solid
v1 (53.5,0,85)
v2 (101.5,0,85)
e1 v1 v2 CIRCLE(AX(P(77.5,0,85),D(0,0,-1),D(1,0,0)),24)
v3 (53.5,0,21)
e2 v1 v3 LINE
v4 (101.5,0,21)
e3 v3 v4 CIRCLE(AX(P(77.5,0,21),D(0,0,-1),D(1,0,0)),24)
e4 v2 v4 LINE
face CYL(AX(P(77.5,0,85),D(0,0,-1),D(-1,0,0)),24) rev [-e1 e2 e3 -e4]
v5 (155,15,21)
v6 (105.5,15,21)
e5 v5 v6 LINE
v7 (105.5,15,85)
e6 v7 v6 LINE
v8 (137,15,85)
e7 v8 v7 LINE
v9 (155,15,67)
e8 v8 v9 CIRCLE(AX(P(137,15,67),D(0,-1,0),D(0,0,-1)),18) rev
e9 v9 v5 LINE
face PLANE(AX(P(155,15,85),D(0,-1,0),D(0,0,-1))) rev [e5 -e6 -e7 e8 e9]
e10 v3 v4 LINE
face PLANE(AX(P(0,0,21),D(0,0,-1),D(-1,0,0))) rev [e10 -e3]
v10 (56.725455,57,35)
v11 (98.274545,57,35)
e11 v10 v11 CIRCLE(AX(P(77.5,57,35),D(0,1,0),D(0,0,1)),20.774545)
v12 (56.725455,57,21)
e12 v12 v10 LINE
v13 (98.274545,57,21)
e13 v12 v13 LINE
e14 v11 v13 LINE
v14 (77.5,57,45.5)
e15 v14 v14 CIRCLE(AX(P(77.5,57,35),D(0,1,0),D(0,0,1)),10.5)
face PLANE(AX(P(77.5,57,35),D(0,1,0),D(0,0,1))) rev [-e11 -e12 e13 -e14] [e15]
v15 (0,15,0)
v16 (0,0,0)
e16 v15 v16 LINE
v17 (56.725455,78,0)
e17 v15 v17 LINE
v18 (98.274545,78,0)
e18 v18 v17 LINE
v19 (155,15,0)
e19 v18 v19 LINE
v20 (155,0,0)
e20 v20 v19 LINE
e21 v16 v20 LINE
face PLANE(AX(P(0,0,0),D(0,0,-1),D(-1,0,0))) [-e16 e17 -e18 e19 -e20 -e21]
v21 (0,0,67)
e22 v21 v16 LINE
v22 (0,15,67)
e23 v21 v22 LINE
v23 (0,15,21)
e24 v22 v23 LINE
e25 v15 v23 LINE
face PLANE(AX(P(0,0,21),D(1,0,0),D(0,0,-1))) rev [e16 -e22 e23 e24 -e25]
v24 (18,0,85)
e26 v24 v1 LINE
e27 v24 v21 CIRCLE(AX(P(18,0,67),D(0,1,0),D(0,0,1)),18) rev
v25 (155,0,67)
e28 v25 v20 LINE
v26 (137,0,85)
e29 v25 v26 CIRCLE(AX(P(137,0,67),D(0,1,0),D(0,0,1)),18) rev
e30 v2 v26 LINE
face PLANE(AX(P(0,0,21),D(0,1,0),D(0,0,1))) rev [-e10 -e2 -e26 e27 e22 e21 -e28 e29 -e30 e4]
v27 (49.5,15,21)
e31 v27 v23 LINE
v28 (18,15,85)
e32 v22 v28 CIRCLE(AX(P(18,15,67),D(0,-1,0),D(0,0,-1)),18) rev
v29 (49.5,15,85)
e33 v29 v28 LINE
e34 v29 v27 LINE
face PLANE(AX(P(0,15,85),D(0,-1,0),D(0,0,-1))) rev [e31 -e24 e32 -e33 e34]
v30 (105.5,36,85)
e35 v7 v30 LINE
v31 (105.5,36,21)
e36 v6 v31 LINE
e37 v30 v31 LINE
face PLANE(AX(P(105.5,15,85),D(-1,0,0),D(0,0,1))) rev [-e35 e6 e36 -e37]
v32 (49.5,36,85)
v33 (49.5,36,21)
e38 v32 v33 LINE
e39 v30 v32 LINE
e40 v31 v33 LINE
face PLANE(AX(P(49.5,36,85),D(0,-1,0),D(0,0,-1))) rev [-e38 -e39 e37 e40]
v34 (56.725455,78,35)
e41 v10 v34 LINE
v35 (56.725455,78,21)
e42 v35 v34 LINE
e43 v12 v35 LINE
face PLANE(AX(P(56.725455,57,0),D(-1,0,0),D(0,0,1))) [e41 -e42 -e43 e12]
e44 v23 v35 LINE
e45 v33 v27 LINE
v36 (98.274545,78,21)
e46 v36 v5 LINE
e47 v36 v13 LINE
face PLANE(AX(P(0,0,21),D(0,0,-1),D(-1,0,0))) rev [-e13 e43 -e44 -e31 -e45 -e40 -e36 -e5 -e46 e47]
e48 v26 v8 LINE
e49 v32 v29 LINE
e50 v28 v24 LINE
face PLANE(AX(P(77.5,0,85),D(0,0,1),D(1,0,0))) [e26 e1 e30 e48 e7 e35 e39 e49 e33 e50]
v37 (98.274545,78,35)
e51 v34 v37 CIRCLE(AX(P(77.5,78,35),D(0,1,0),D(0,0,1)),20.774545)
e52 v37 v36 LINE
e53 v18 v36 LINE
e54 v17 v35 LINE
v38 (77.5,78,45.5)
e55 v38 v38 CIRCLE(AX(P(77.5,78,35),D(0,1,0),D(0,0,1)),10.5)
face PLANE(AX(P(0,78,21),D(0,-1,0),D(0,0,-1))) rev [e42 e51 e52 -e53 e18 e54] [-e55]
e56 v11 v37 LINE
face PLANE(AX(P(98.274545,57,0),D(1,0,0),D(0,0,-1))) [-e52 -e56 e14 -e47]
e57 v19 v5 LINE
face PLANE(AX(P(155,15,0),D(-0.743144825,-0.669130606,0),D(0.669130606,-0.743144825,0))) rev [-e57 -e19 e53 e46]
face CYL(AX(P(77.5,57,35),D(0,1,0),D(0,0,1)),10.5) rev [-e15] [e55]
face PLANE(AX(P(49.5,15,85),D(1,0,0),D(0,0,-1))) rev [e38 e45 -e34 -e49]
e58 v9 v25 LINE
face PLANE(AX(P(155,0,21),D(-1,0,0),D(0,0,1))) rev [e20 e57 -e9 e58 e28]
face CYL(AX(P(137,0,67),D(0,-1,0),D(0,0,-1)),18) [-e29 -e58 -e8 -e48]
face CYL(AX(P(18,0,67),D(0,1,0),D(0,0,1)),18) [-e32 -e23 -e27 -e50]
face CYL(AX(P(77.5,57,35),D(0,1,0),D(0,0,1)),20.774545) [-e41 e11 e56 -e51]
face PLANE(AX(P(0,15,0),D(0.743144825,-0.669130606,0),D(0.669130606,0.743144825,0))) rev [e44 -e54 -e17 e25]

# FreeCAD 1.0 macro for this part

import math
import FreeCAD as App
import Part
import Sketcher
from FreeCAD import Vector
Q = App.Units.Quantity


def edges_at(feature, points):
    """Names of the edges that pass closest to the given points."""
    edges = feature.Shape.Edges
    near = lambda p: min(range(len(edges)), key=lambda i: edges[i].distToShape(Part.Vertex(*p))[0])
    return sorted({f"Edge{near(p) + 1}" for p in points})


def add_polygon(sketch, points):
    """Adds a closed chain of lines whose ends are joined by coincident constraints."""
    first, n = sketch.GeometryCount, len(points)
    for a, b in zip(points, points[1:] + points[:1]):
        sketch.addGeometry(Part.LineSegment(App.Vector(*a, 0), App.Vector(*b, 0)), False)
    for i in range(n):
        sketch.addConstraint(Sketcher.Constraint("Coincident", first + i, 2, first + (i + 1) % n, 1))

doc = App.newDocument("Part")
body = doc.addObject("PartDesign::Body", "Body")

# Sketch on XY plane
sketch1 = body.newObject("Sketcher::SketchObject", "Sketch")
sketch1.AttachmentSupport = (doc.getObject("XY_Plane"), [""])
sketch1.MapMode = "FlatFace"
add_polygon(sketch1, [(0, 78), (0, 0), (155, 0), (155, 78)])  # lines 0-3
sketch1.addConstraint([
    Sketcher.Constraint("Vertical", 0),
    Sketcher.Constraint("Horizontal", 1),
    Sketcher.Constraint("Vertical", 2),
    Sketcher.Constraint("Horizontal", 3),
    Sketcher.Constraint("Coincident", 0, 2, -1, 1),
    Sketcher.Constraint("DistanceX", 1, 1, 1, 2, 155.0),
    Sketcher.Constraint("DistanceY", 0, 2, 0, 1, 78.0),
])
pad1 = body.newObject("PartDesign::Pad", "Pad")
pad1.Profile = sketch1
pad1.Length = 21

# Sketch on XY plane
sketch2 = body.newObject("Sketcher::SketchObject", "Sketch001")
sketch2.AttachmentSupport = (doc.getObject("XY_Plane"), [""])
sketch2.MapMode = "FlatFace"
sketch2.AttachmentOffset = App.Placement(Vector(0, 0, 21), App.Rotation())
sketch2.addGeometry([
    Part.LineSegment(Vector(0, 0, 0), Vector(54, 0, 0)),  # 0
    Part.ArcOfCircle(Part.Circle(Vector(78, 0, 0), Vector(0, 0, 1), 24), math.radians(0), math.radians(180)),  # 1
    Part.LineSegment(Vector(102, 0, 0), Vector(155, 0, 0)),  # 2
    Part.LineSegment(Vector(155, 0, 0), Vector(155, 15, 0)),  # 3
    Part.LineSegment(Vector(155, 15, 0), Vector(106, 15, 0)),  # 4
    Part.LineSegment(Vector(106, 15, 0), Vector(106, 36, 0)),  # 5
    Part.LineSegment(Vector(106, 36, 0), Vector(50, 36, 0)),  # 6
    Part.LineSegment(Vector(50, 36, 0), Vector(50, 15, 0)),  # 7
    Part.LineSegment(Vector(50, 15, 0), Vector(0, 15, 0)),  # 8
    Part.LineSegment(Vector(0, 15, 0), Vector(0, 0, 0)),  # 9
], False)
sketch2.addConstraint([
    Sketcher.Constraint("Coincident", 0, 2, 1, 2),
    Sketcher.Constraint("Coincident", 1, 1, 2, 1),
    Sketcher.Constraint("Coincident", 2, 2, 3, 1),
    Sketcher.Constraint("Coincident", 3, 2, 4, 1),
    Sketcher.Constraint("Coincident", 4, 2, 5, 1),
    Sketcher.Constraint("Coincident", 5, 2, 6, 1),
    Sketcher.Constraint("Coincident", 6, 2, 7, 1),
    Sketcher.Constraint("Coincident", 7, 2, 8, 1),
    Sketcher.Constraint("Coincident", 8, 2, 9, 1),
    Sketcher.Constraint("Coincident", 9, 2, 0, 1),
    Sketcher.Constraint("Horizontal", 0),
    Sketcher.Constraint("Horizontal", 2),
    Sketcher.Constraint("Vertical", 3),
    Sketcher.Constraint("Horizontal", 4),
    Sketcher.Constraint("Vertical", 5),
    Sketcher.Constraint("Horizontal", 6),
    Sketcher.Constraint("Vertical", 7),
    Sketcher.Constraint("Horizontal", 8),
    Sketcher.Constraint("Vertical", 9),
    Sketcher.Constraint("Coincident", 9, 2, -1, 1),
    Sketcher.Constraint("PointOnObject", 1, 3, -1),
    Sketcher.Constraint("PointOnObject", 1, 1, -1),
    Sketcher.Constraint("Horizontal", 4, 2, 7, 2),
    Sketcher.Constraint("Equal", 0, 2),
    Sketcher.Constraint("Equal", 4, 8),
    Sketcher.Constraint("Radius", 1, 24.0),
    Sketcher.Constraint("DistanceX", 6, 2, 6, 1, 56.0),
    Sketcher.Constraint("DistanceY", 3, 1, 3, 2, 15.0),
    Sketcher.Constraint("DistanceY", 5, 1, 5, 2, 21.0),
    Sketcher.Constraint("DistanceX", 0, 1, 0, 2, 53.5),
])
pad2 = body.newObject("PartDesign::Pad", "Pad001")
pad2.Profile = sketch2
pad2.Length = 64
doc.recompute()

fillet = body.newObject("PartDesign::Fillet", "Fillet")
fillet.Base = (pad2, edges_at(pad2, [(0, 7.5, 85), (155, 7.5, 85)]))
fillet.Radius = 18

# Sketch on XY plane
sketch3 = body.newObject("Sketcher::SketchObject", "Sketch002")
sketch3.AttachmentSupport = (doc.getObject("XY_Plane"), [""])
sketch3.MapMode = "FlatFace"
sketch3.AttachmentOffset = App.Placement(Vector(0, 0, 21), App.Rotation())
add_polygon(sketch3, [(0, 15), (57, 78), (0, 78)])  # lines 0-2
add_polygon(sketch3, [(98, 78), (155, 15), (155, 78)])  # lines 3-5
sketch3.addConstraint([
    Sketcher.Constraint("Horizontal", 1),
    Sketcher.Constraint("Vertical", 2),
    Sketcher.Constraint("Vertical", 4),
    Sketcher.Constraint("Horizontal", 5),
    Sketcher.Constraint("PointOnObject", 1, 2, -2),
    Sketcher.Constraint("Horizontal", 2, 2, 3, 2),
    Sketcher.Constraint("Horizontal", 1, 2, 4, 2),
    Sketcher.Constraint("Equal", 1, 5),
    Sketcher.Constraint("DistanceY", 2, 2, 2, 1, 63.0),
    Sketcher.Constraint("Angle", 0, Q("48 deg")),
    Sketcher.Constraint("DistanceY", -1, 1, 0, 2, 78.0),
    Sketcher.Constraint("DistanceX", -1, 1, 3, 2, 155.0),
])
pocket1 = body.newObject("PartDesign::Pocket", "Pocket")
pocket1.Profile = sketch3
pocket1.Type = "ThroughAll"

# Sketch on XZ plane
sketch4 = body.newObject("Sketcher::SketchObject", "Sketch003")
sketch4.AttachmentSupport = (doc.getObject("XZ_Plane"), [""])
sketch4.MapMode = "FlatFace"
sketch4.AttachmentOffset = App.Placement(Vector(0, 0, -78), App.Rotation())
sketch4.addGeometry([
    Part.LineSegment(Vector(57, 0, 0), Vector(57, 35, 0)),  # 0
    Part.ArcOfCircle(Part.Circle(Vector(78, 35, 0), Vector(0, 0, 1), 21), math.radians(0), math.radians(180)),  # 1
    Part.LineSegment(Vector(98, 35, 0), Vector(98, 0, 0)),  # 2
    Part.LineSegment(Vector(98, 0, 0), Vector(57, 0, 0)),  # 3
    Part.Circle(Vector(78, 35, 0), Vector(0, 0, 1), 10),  # 4
], False)
sketch4.addConstraint([
    Sketcher.Constraint("Tangent", 0, 2, 1, 2),
    Sketcher.Constraint("Tangent", 1, 1, 2, 1),
    Sketcher.Constraint("Coincident", 2, 2, 3, 1),
    Sketcher.Constraint("Coincident", 3, 2, 0, 1),
    Sketcher.Constraint("Vertical", 0),
    Sketcher.Constraint("Vertical", 2),
    Sketcher.Constraint("Horizontal", 3),
    Sketcher.Constraint("Coincident", 4, 3, 1, 3),
    Sketcher.Constraint("PointOnObject", 2, 2, -1),
    Sketcher.Constraint("Diameter", 4, 21.0),
    Sketcher.Constraint("DistanceY", 0, 1, 0, 2, 35.0),
    Sketcher.Constraint("DistanceX", -1, 1, 1, 3, 77.5),
    Sketcher.Constraint("Radius", 1, 20.774545),
])
pad3 = body.newObject("PartDesign::Pad", "Pad002")
pad3.Profile = sketch4
pad3.Length = 21

doc.recompute()
